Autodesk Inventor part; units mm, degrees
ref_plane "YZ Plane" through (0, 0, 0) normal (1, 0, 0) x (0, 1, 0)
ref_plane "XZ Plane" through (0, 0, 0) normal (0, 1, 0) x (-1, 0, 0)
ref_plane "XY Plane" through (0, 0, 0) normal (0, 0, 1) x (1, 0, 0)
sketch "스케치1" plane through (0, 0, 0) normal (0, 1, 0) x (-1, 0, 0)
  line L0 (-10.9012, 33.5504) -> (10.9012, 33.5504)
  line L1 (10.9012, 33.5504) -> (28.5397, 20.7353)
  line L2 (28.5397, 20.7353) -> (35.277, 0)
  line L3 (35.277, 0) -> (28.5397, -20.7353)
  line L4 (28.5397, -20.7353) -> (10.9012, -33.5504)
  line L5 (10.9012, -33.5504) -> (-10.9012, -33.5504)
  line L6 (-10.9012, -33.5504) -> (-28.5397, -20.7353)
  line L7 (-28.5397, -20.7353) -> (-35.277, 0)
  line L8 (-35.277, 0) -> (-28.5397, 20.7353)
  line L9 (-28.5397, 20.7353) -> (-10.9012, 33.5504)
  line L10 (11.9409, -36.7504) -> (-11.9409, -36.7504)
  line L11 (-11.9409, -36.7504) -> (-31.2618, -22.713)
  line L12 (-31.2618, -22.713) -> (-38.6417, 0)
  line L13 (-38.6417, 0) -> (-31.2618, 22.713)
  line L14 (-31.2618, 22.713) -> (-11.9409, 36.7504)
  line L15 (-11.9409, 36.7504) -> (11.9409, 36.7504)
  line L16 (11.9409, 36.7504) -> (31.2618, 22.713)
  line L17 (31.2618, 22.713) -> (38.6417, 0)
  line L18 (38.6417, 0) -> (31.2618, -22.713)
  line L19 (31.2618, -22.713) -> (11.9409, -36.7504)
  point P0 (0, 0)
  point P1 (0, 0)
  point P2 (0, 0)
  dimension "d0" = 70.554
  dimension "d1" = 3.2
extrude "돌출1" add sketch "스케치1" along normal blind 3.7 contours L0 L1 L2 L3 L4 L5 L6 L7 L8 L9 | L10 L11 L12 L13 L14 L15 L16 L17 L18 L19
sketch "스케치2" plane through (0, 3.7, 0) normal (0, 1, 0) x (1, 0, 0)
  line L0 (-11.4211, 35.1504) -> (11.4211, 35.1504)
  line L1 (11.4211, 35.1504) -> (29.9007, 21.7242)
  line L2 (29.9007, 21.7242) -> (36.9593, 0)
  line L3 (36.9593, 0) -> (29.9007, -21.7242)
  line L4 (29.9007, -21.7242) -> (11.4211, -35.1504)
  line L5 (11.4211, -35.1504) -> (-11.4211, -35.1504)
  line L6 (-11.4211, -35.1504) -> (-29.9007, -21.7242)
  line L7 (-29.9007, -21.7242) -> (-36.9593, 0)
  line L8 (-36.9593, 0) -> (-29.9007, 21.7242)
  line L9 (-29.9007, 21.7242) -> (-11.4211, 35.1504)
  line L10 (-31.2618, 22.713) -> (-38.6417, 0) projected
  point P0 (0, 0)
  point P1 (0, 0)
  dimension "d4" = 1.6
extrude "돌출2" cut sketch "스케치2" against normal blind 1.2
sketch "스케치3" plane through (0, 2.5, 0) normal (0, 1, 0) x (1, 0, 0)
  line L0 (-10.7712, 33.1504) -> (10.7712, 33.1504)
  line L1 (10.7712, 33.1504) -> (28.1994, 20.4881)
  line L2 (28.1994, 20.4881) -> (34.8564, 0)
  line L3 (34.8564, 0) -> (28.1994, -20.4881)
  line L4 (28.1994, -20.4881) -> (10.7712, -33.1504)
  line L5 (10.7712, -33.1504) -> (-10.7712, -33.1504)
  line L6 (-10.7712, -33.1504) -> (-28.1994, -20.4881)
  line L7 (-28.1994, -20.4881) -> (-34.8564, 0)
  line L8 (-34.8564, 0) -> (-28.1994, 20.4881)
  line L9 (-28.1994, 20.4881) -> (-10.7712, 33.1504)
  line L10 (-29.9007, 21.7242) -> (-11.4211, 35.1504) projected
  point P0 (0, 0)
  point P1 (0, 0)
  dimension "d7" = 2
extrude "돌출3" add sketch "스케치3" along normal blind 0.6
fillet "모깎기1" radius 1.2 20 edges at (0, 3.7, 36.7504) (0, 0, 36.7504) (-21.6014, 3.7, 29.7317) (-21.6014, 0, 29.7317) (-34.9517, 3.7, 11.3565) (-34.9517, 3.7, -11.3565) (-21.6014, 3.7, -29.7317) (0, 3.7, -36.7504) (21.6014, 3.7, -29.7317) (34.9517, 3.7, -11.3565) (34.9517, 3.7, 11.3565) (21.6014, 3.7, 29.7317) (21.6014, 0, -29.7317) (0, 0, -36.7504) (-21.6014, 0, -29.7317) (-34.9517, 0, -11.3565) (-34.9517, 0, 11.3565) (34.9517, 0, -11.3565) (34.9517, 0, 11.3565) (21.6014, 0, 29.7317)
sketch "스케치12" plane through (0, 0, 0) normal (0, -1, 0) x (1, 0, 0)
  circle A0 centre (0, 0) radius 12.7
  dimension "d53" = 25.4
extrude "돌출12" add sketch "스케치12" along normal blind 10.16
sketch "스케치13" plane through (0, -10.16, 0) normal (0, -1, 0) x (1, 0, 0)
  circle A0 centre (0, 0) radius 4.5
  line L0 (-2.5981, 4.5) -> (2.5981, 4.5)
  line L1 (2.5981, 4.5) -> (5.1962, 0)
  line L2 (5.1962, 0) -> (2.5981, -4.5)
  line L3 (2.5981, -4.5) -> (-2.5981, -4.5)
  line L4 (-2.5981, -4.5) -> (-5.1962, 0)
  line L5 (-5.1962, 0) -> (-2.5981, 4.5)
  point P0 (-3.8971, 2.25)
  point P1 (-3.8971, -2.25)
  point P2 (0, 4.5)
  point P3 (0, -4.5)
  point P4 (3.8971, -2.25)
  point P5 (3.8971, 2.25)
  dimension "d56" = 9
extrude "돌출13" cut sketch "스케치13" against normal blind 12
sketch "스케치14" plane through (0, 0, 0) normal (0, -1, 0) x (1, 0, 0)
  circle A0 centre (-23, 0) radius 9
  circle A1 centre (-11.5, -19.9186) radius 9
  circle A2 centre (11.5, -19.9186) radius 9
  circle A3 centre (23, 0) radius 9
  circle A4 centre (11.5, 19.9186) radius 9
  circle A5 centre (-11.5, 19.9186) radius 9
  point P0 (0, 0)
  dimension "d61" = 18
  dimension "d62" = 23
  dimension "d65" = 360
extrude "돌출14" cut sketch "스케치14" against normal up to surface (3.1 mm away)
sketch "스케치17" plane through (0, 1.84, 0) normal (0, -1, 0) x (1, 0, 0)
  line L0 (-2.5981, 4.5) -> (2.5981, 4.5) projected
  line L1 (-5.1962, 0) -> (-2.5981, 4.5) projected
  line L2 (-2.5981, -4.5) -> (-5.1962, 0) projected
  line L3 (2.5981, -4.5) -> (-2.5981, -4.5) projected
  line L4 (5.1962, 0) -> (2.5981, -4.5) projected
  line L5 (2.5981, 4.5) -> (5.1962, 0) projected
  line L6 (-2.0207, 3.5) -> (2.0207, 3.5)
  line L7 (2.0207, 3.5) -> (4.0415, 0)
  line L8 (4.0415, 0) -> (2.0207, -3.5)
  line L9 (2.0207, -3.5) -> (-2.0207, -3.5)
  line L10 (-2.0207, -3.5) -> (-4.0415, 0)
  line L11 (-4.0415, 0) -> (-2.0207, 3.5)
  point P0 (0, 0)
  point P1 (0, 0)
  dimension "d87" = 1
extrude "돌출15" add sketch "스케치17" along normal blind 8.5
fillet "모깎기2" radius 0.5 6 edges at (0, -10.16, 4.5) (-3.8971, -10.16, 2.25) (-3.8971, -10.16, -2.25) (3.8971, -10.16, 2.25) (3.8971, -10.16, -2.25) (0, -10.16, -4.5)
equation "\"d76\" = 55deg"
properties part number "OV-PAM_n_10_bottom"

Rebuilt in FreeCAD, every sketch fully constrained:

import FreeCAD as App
import Part
import Sketcher
Q = App.Units.Quantity


def edges_at(feature, points):
    """Names of the edges that pass closest to the given points."""
    edges = feature.Shape.Edges
    near = lambda p: min(range(len(edges)), key=lambda i: edges[i].distToShape(Part.Vertex(*p))[0])
    return sorted({f"Edge{near(p) + 1}" for p in points})

doc = App.newDocument("Part")
params = doc.addObject("Spreadsheet::Sheet", "Params")
for row, (alias, value) in enumerate([
    ("pad1_length", "3.7 mm"),
    ("pocket1_length", "1.2 mm"),
    ("pad2_length", "0.6 mm"),
    ("fillet_radius", "1.2 mm"),
    ("sketch4_diameter", "25.4 mm"),
    ("pad3_length", "10.16 mm"),
    ("pocket2_length", "12 mm"),
    ("sketch6_diameter", "18 mm"),
    ("pocket3_length", "3.1 mm"),
    ("pad4_length", "8.5 mm"),
    ("fillet2_radius", "0.5 mm"),
], start=1):
    params.set(f"A{row}", alias)
    params.set(f"B{row}", "=" + value)
    params.setAlias(f"B{row}", alias)

body = doc.addObject("PartDesign::Body", "Body")

# Sketch on XZ plane
sketch1 = body.newObject("Sketcher::SketchObject", "Sketch")
sketch1.AttachmentSupport = (doc.getObject("XZ_Plane"), [""])
sketch1.MapMode = "FlatFace"
sketch1.addGeometry([
    Part.LineSegment(App.Vector(11.9409, -36.7504, 0), App.Vector(-11.9409, -36.7504, 0)),  # 0
    Part.LineSegment(App.Vector(-11.9409, -36.7504, 0), App.Vector(-31.2618, -22.713, 0)),  # 1
    Part.LineSegment(App.Vector(-31.2618, -22.713, 0), App.Vector(-38.6417, 0, 0)),  # 2
    Part.LineSegment(App.Vector(-38.6417, 0, 0), App.Vector(-31.2618, 22.713, 0)),  # 3
    Part.LineSegment(App.Vector(-31.2618, 22.713, 0), App.Vector(-11.9409, 36.7504, 0)),  # 4
    Part.LineSegment(App.Vector(-11.9409, 36.7504, 0), App.Vector(11.9409, 36.7504, 0)),  # 5
    Part.LineSegment(App.Vector(11.9409, 36.7504, 0), App.Vector(31.2618, 22.713, 0)),  # 6
    Part.LineSegment(App.Vector(31.2618, 22.713, 0), App.Vector(38.6417, 0, 0)),  # 7
    Part.LineSegment(App.Vector(38.6417, 0, 0), App.Vector(31.2618, -22.713, 0)),  # 8
    Part.LineSegment(App.Vector(31.2618, -22.713, 0), App.Vector(11.9409, -36.7504, 0)),  # 9
], False)
sketch1.addConstraint([
    Sketcher.Constraint("Coincident", 0, 2, 1, 1),
    Sketcher.Constraint("Coincident", 1, 2, 2, 1),
    Sketcher.Constraint("Coincident", 2, 2, 3, 1),
    Sketcher.Constraint("Coincident", 3, 2, 4, 1),
    Sketcher.Constraint("Coincident", 4, 2, 5, 1),
    Sketcher.Constraint("Coincident", 5, 2, 6, 1),
    Sketcher.Constraint("Coincident", 6, 2, 7, 1),
    Sketcher.Constraint("Coincident", 7, 2, 8, 1),
    Sketcher.Constraint("Coincident", 8, 2, 9, 1),
    Sketcher.Constraint("Coincident", 9, 2, 0, 1),
    Sketcher.Constraint("Horizontal", 0),
    Sketcher.Constraint("Horizontal", 5),
    Sketcher.Constraint("Symmetric", 0, 2, 5, 2, -1, 1),
    Sketcher.Constraint("Symmetric", 1, 2, 6, 2, -1, 1),
    Sketcher.Constraint("Symmetric", 2, 2, 7, 2, -1, 1),
    Sketcher.Constraint("Symmetric", 3, 2, 8, 2, -1, 1),
    Sketcher.Constraint("Symmetric", 3, 2, 6, 2, -2),
    Sketcher.Constraint("PointOnObject", 2, 2, -1),
    Sketcher.Constraint("Parallel", 4, 9),
    Sketcher.Constraint("Vertical", 0, 2, 4, 2),
    Sketcher.Constraint("Equal", 1, 2),
    Sketcher.Constraint("Angle", 1, Q("144 deg")),
    Sketcher.Constraint("Angle", 2, Q("108 deg")),
    Sketcher.Constraint("DistanceX", 2, 2, 1, 2, Q("7.38 mm")),
    Sketcher.Constraint("DistanceX", 0, 2, 0, 1, Q("23.8818 mm")),
])
pad1 = body.newObject("PartDesign::Pad", "Pad")
pad1.Profile = sketch1
pad1.setExpression("Length", "Params.pad1_length")
pad1.Reversed = True

# Sketch on XZ plane
sketch2 = body.newObject("Sketcher::SketchObject", "Sketch001")
sketch2.AttachmentSupport = (doc.getObject("XZ_Plane"), [""])
sketch2.MapMode = "FlatFace"
sketch2.AttachmentOffset = App.Placement(App.Vector(0, 0, -3.7), App.Rotation())
sketch2.addGeometry([
    Part.LineSegment(App.Vector(11.4211, -35.1504, 0), App.Vector(-11.4211, -35.1504, 0)),  # 0
    Part.LineSegment(App.Vector(-11.4211, -35.1504, 0), App.Vector(-29.9007, -21.7242, 0)),  # 1
    Part.LineSegment(App.Vector(-29.9007, -21.7242, 0), App.Vector(-36.9593, 0, 0)),  # 2
    Part.LineSegment(App.Vector(-36.9593, 0, 0), App.Vector(-29.9007, 21.7242, 0)),  # 3
    Part.LineSegment(App.Vector(-29.9007, 21.7242, 0), App.Vector(-11.4211, 35.1504, 0)),  # 4
    Part.LineSegment(App.Vector(-11.4211, 35.1504, 0), App.Vector(11.4211, 35.1504, 0)),  # 5
    Part.LineSegment(App.Vector(11.4211, 35.1504, 0), App.Vector(29.9007, 21.7242, 0)),  # 6
    Part.LineSegment(App.Vector(29.9007, 21.7242, 0), App.Vector(36.9593, 0, 0)),  # 7
    Part.LineSegment(App.Vector(36.9593, 0, 0), App.Vector(29.9007, -21.7242, 0)),  # 8
    Part.LineSegment(App.Vector(29.9007, -21.7242, 0), App.Vector(11.4211, -35.1504, 0)),  # 9
], False)
sketch2.addConstraint([
    Sketcher.Constraint("Coincident", 0, 2, 1, 1),
    Sketcher.Constraint("Coincident", 1, 2, 2, 1),
    Sketcher.Constraint("Coincident", 2, 2, 3, 1),
    Sketcher.Constraint("Coincident", 3, 2, 4, 1),
    Sketcher.Constraint("Coincident", 4, 2, 5, 1),
    Sketcher.Constraint("Coincident", 5, 2, 6, 1),
    Sketcher.Constraint("Coincident", 6, 2, 7, 1),
    Sketcher.Constraint("Coincident", 7, 2, 8, 1),
    Sketcher.Constraint("Coincident", 8, 2, 9, 1),
    Sketcher.Constraint("Coincident", 9, 2, 0, 1),
    Sketcher.Constraint("Horizontal", 0),
    Sketcher.Constraint("Horizontal", 5),
    Sketcher.Constraint("Symmetric", 0, 2, 5, 2, -1, 1),
    Sketcher.Constraint("Symmetric", 1, 2, 6, 2, -1, 1),
    Sketcher.Constraint("Symmetric", 2, 2, 7, 2, -1, 1),
    Sketcher.Constraint("Symmetric", 3, 2, 8, 2, -1, 1),
    Sketcher.Constraint("Symmetric", 3, 2, 6, 2, -2),
    Sketcher.Constraint("PointOnObject", 2, 2, -1),
    Sketcher.Constraint("Parallel", 4, 9),
    Sketcher.Constraint("Vertical", 0, 2, 4, 2),
    Sketcher.Constraint("Equal", 1, 2),
    Sketcher.Constraint("Angle", 1, Q("144 deg")),
    Sketcher.Constraint("Angle", 2, Q("108 deg")),
    Sketcher.Constraint("DistanceX", 2, 2, 6, 2, Q("66.86 mm")),
    Sketcher.Constraint("Distance", 1, Q("22.842 mm")),
])
pocket1 = body.newObject("PartDesign::Pocket", "Pocket")
pocket1.Profile = sketch2
pocket1.setExpression("Length", "Params.pocket1_length")
pocket1.Reversed = True

# Sketch on XZ plane
sketch3 = body.newObject("Sketcher::SketchObject", "Sketch002")
sketch3.AttachmentSupport = (doc.getObject("XZ_Plane"), [""])
sketch3.MapMode = "FlatFace"
sketch3.AttachmentOffset = App.Placement(App.Vector(0, 0, -2.5), App.Rotation())
sketch3.addGeometry([
    Part.LineSegment(App.Vector(10.7712, -33.1504, 0), App.Vector(-10.7712, -33.1504, 0)),  # 0
    Part.LineSegment(App.Vector(-10.7712, -33.1504, 0), App.Vector(-28.1994, -20.4881, 0)),  # 1
    Part.LineSegment(App.Vector(-28.1994, -20.4881, 0), App.Vector(-34.8564, 0, 0)),  # 2
    Part.LineSegment(App.Vector(-34.8564, 0, 0), App.Vector(-28.1994, 20.4881, 0)),  # 3
    Part.LineSegment(App.Vector(-28.1994, 20.4881, 0), App.Vector(-10.7712, 33.1504, 0)),  # 4
    Part.LineSegment(App.Vector(-10.7712, 33.1504, 0), App.Vector(10.7712, 33.1504, 0)),  # 5
    Part.LineSegment(App.Vector(10.7712, 33.1504, 0), App.Vector(28.1994, 20.4881, 0)),  # 6
    Part.LineSegment(App.Vector(28.1994, 20.4881, 0), App.Vector(34.8564, 0, 0)),  # 7
    Part.LineSegment(App.Vector(34.8564, 0, 0), App.Vector(28.1994, -20.4881, 0)),  # 8
    Part.LineSegment(App.Vector(28.1994, -20.4881, 0), App.Vector(10.7712, -33.1504, 0)),  # 9
], False)
sketch3.addConstraint([
    Sketcher.Constraint("Coincident", 0, 2, 1, 1),
    Sketcher.Constraint("Coincident", 1, 2, 2, 1),
    Sketcher.Constraint("Coincident", 2, 2, 3, 1),
    Sketcher.Constraint("Coincident", 3, 2, 4, 1),
    Sketcher.Constraint("Coincident", 4, 2, 5, 1),
    Sketcher.Constraint("Coincident", 5, 2, 6, 1),
    Sketcher.Constraint("Coincident", 6, 2, 7, 1),
    Sketcher.Constraint("Coincident", 7, 2, 8, 1),
    Sketcher.Constraint("Coincident", 8, 2, 9, 1),
    Sketcher.Constraint("Coincident", 9, 2, 0, 1),
    Sketcher.Constraint("Horizontal", 0),
    Sketcher.Constraint("Horizontal", 5),
    Sketcher.Constraint("Symmetric", 0, 2, 5, 2, -1, 1),
    Sketcher.Constraint("Symmetric", 1, 2, 6, 2, -1, 1),
    Sketcher.Constraint("Symmetric", 2, 2, 7, 2, -1, 1),
    Sketcher.Constraint("Symmetric", 3, 2, 8, 2, -1, 1),
    Sketcher.Constraint("Symmetric", 3, 2, 6, 2, -2),
    Sketcher.Constraint("PointOnObject", 2, 2, -1),
    Sketcher.Constraint("Parallel", 4, 9),
    Sketcher.Constraint("Vertical", 0, 2, 4, 2),
    Sketcher.Constraint("Equal", 1, 2),
    Sketcher.Constraint("Angle", 1, Q("144 deg")),
    Sketcher.Constraint("Angle", 2, Q("108 deg")),
    Sketcher.Constraint("DistanceX", 0, 2, 0, 1, Q("21.5424 mm")),
    Sketcher.Constraint("DistanceY", 1, 2, -1, 1, Q("20.488 mm")),
])
pad2 = body.newObject("PartDesign::Pad", "Pad001")
pad2.Profile = sketch3
pad2.setExpression("Length", "Params.pad2_length")
pad2.Reversed = True
doc.recompute()

fillet = body.newObject("PartDesign::Fillet", "Fillet")
fillet.Base = (pad2, edges_at(pad2, [
    (0, 3.7, 36.75),
    (0, 0, 36.75),
    (-21.601, 3.7, 29.732),
    (-21.601, 0, 29.732),
    (-34.952, 3.7, 11.357),
    (-34.952, 3.7, -11.357),
    (-21.601, 3.7, -29.732),
    (0, 3.7, -36.75),
    (21.601, 3.7, -29.732),
    (34.952, 3.7, -11.357),
    (34.952, 3.7, 11.357),
    (21.601, 3.7, 29.732),
    (21.601, 0, -29.732),
    (0, 0, -36.75),
    (-21.601, 0, -29.732),
    (-34.952, 0, -11.357),
    (-34.952, 0, 11.357),
    (34.952, 0, -11.357),
    (34.952, 0, 11.357),
    (21.601, 0, 29.732),
]))
fillet.setExpression("Radius", "Params.fillet_radius")

# Sketch on XZ plane
sketch4 = body.newObject("Sketcher::SketchObject", "Sketch003")
sketch4.AttachmentSupport = (doc.getObject("XZ_Plane"), [""])
sketch4.MapMode = "FlatFace"
sketch4.addGeometry(Part.Circle(App.Vector(0, 0, 0), App.Vector(0, 0, 1), 12.7), False)
sketch4.addConstraint([
    Sketcher.Constraint("Coincident", 0, 3, -1, 1),
    Sketcher.Constraint("Diameter", 0, Q("25.4 mm")),
])
sketch4.setExpression("Constraints[1]", "Params.sketch4_diameter")
pad3 = body.newObject("PartDesign::Pad", "Pad002")
pad3.Profile = sketch4
pad3.setExpression("Length", "Params.pad3_length")

# Sketch on XZ plane
sketch5 = body.newObject("Sketcher::SketchObject", "Sketch004")
sketch5.AttachmentSupport = (doc.getObject("XZ_Plane"), [""])
sketch5.MapMode = "FlatFace"
sketch5.AttachmentOffset = App.Placement(App.Vector(0, 0, 10.16), App.Rotation())
sketch5.addGeometry([
    Part.LineSegment(App.Vector(5.1962, 0, 0), App.Vector(2.5981, 4.5, 0)),  # 0
    Part.LineSegment(App.Vector(2.5981, 4.5, 0), App.Vector(-2.5981, 4.5, 0)),  # 1
    Part.LineSegment(App.Vector(-2.5981, 4.5, 0), App.Vector(-5.1962, 0, 0)),  # 2
    Part.LineSegment(App.Vector(-5.1962, 0, 0), App.Vector(-2.5981, -4.5, 0)),  # 3
    Part.LineSegment(App.Vector(-2.5981, -4.5, 0), App.Vector(2.5981, -4.5, 0)),  # 4
    Part.LineSegment(App.Vector(2.5981, -4.5, 0), App.Vector(5.1962, 0, 0)),  # 5
], False)
sketch5.addConstraint([
    Sketcher.Constraint("Coincident", 0, 2, 1, 1),
    Sketcher.Constraint("Coincident", 1, 2, 2, 1),
    Sketcher.Constraint("Coincident", 2, 2, 3, 1),
    Sketcher.Constraint("Coincident", 3, 2, 4, 1),
    Sketcher.Constraint("Coincident", 4, 2, 5, 1),
    Sketcher.Constraint("Coincident", 5, 2, 0, 1),
    Sketcher.Constraint("Horizontal", 1),
    Sketcher.Constraint("Horizontal", 4),
    Sketcher.Constraint("Symmetric", 0, 2, 3, 2, -1, 1),
    Sketcher.Constraint("Symmetric", 2, 2, 5, 2, -1, 1),
    Sketcher.Constraint("PointOnObject", 2, 2, -1),
    Sketcher.Constraint("Parallel", 2, 5),
    Sketcher.Constraint("Vertical", 1, 2, 3, 2),
    Sketcher.Constraint("DistanceY", 3, 2, 1, 2, Q("9 mm")),
    Sketcher.Constraint("Angle", 0, Q("120.0002 deg")),
    Sketcher.Constraint("DistanceX", 1, 2, 1, 1, Q("5.1962 mm")),
])
pocket2 = body.newObject("PartDesign::Pocket", "Pocket001")
pocket2.Profile = sketch5
pocket2.setExpression("Length", "Params.pocket2_length")

# Sketch on XZ plane
sketch6 = body.newObject("Sketcher::SketchObject", "Sketch005")
sketch6.AttachmentSupport = (doc.getObject("XZ_Plane"), [""])
sketch6.MapMode = "FlatFace"
sketch6.addGeometry([
    Part.Circle(App.Vector(-23, 0, 0), App.Vector(0, 0, 1), 9),  # 0
    Part.Circle(App.Vector(-11.5, -19.9186, 0), App.Vector(0, 0, 1), 9),  # 1
    Part.Circle(App.Vector(11.5, -19.9186, 0), App.Vector(0, 0, 1), 9),  # 2
    Part.Circle(App.Vector(23, 0, 0), App.Vector(0, 0, 1), 9),  # 3
    Part.Circle(App.Vector(11.5, 19.9186, 0), App.Vector(0, 0, 1), 9),  # 4
    Part.Circle(App.Vector(-11.5, 19.9186, 0), App.Vector(0, 0, 1), 9),  # 5
], False)
sketch6.addConstraint([
    Sketcher.Constraint("Equal", 0, 1),
    Sketcher.Constraint("Equal", 1, 2),
    Sketcher.Constraint("Equal", 2, 3),
    Sketcher.Constraint("Equal", 3, 4),
    Sketcher.Constraint("Equal", 4, 5),
    Sketcher.Constraint("Symmetric", 0, 3, 3, 3, -1, 1),
    Sketcher.Constraint("Symmetric", 1, 3, 4, 3, -1, 1),
    Sketcher.Constraint("Symmetric", 2, 3, 5, 3, -1, 1),
    Sketcher.Constraint("Symmetric", 1, 3, 2, 3, -2),
    Sketcher.Constraint("PointOnObject", 0, 3, -1),
    Sketcher.Constraint("Diameter", 0, Q("18 mm")),
    Sketcher.Constraint("DistanceX", 0, 3, -1, 1, Q("23 mm")),
    Sketcher.Constraint("DistanceX", 1, 3, 2, 3, Q("23 mm")),
    Sketcher.Constraint("DistanceY", 1, 3, -1, 1, Q("19.9186 mm")),
])
sketch6.setExpression("Constraints[10]", "Params.sketch6_diameter")
pocket3 = body.newObject("PartDesign::Pocket", "Pocket002")
pocket3.Profile = sketch6
pocket3.setExpression("Length", "Params.pocket3_length")

# Sketch on XZ plane
sketch7 = body.newObject("Sketcher::SketchObject", "Sketch006")
sketch7.AttachmentSupport = (doc.getObject("XZ_Plane"), [""])
sketch7.MapMode = "FlatFace"
sketch7.AttachmentOffset = App.Placement(App.Vector(0, 0, -1.84), App.Rotation())
sketch7.addGeometry([
    Part.LineSegment(App.Vector(2.5981, 4.5, 0), App.Vector(-2.5981, 4.5, 0)),  # 0
    Part.LineSegment(App.Vector(-2.5981, 4.5, 0), App.Vector(-5.1962, 0, 0)),  # 1
    Part.LineSegment(App.Vector(-5.1962, 0, 0), App.Vector(-2.5981, -4.5, 0)),  # 2
    Part.LineSegment(App.Vector(-2.5981, -4.5, 0), App.Vector(2.5981, -4.5, 0)),  # 3
    Part.LineSegment(App.Vector(2.5981, -4.5, 0), App.Vector(5.1962, 0, 0)),  # 4
    Part.LineSegment(App.Vector(5.1962, 0, 0), App.Vector(2.5981, 4.5, 0)),  # 5
    Part.LineSegment(App.Vector(-4.0415, 0, 0), App.Vector(-2.0207, 3.5, 0)),  # 6
    Part.LineSegment(App.Vector(-2.0207, 3.5, 0), App.Vector(2.0207, 3.5, 0)),  # 7
    Part.LineSegment(App.Vector(2.0207, 3.5, 0), App.Vector(4.0415, 0, 0)),  # 8
    Part.LineSegment(App.Vector(4.0415, 0, 0), App.Vector(2.0207, -3.5, 0)),  # 9
    Part.LineSegment(App.Vector(2.0207, -3.5, 0), App.Vector(-2.0207, -3.5, 0)),  # 10
    Part.LineSegment(App.Vector(-2.0207, -3.5, 0), App.Vector(-4.0415, 0, 0)),  # 11
], False)
sketch7.addConstraint([
    Sketcher.Constraint("Coincident", 0, 2, 1, 1),
    Sketcher.Constraint("Coincident", 1, 2, 2, 1),
    Sketcher.Constraint("Coincident", 2, 2, 3, 1),
    Sketcher.Constraint("Coincident", 3, 2, 4, 1),
    Sketcher.Constraint("Coincident", 4, 2, 5, 1),
    Sketcher.Constraint("Coincident", 5, 2, 0, 1),
    Sketcher.Constraint("Coincident", 6, 2, 7, 1),
    Sketcher.Constraint("Coincident", 7, 2, 8, 1),
    Sketcher.Constraint("Coincident", 8, 2, 9, 1),
    Sketcher.Constraint("Coincident", 9, 2, 10, 1),
    Sketcher.Constraint("Coincident", 10, 2, 11, 1),
    Sketcher.Constraint("Coincident", 11, 2, 6, 1),
    Sketcher.Constraint("Horizontal", 0),
    Sketcher.Constraint("Horizontal", 3),
    Sketcher.Constraint("Horizontal", 7),
    Sketcher.Constraint("Horizontal", 10),
    Sketcher.Constraint("Symmetric", 0, 2, 3, 2, -1, 1),
    Sketcher.Constraint("Symmetric", 1, 2, 4, 2, -1, 1),
    Sketcher.Constraint("Symmetric", 6, 2, 9, 2, -1, 1),
    Sketcher.Constraint("Symmetric", 8, 2, 11, 2, -1, 1),
    Sketcher.Constraint("PointOnObject", 1, 2, -1),
    Sketcher.Constraint("PointOnObject", 8, 2, -1),
    Sketcher.Constraint("Parallel", 2, 5),
    Sketcher.Constraint("Parallel", 4, 6),
    Sketcher.Constraint("Parallel", 5, 8),
    Sketcher.Constraint("Parallel", 8, 11),
    Sketcher.Constraint("Vertical", 0, 2, 2, 2),
    Sketcher.Constraint("DistanceY", 6, 2, 0, 2, Q("1 mm")),
    Sketcher.Constraint("Angle", 1, Q("-120.0002 deg")),
    Sketcher.Constraint("DistanceY", 2, 2, 0, 2, Q("9 mm")),
    Sketcher.Constraint("DistanceX", 0, 2, 0, 1, Q("5.1962 mm")),
    Sketcher.Constraint("DistanceX", 7, 1, 7, 2, Q("4.0414 mm")),
])
pad4 = body.newObject("PartDesign::Pad", "Pad003")
pad4.Profile = sketch7
pad4.setExpression("Length", "Params.pad4_length")
doc.recompute()

fillet2 = body.newObject("PartDesign::Fillet", "Fillet001")
fillet2.Base = (pad4, edges_at(pad4, [
    (0, -10.16, 4.5),
    (-3.897, -10.16, 2.25),
    (-3.897, -10.16, -2.25),
    (3.897, -10.16, 2.25),
    (3.897, -10.16, -2.25),
    (0, -10.16, -4.5),
]))
fillet2.setExpression("Radius", "Params.fillet2_radius")

doc.recompute()
